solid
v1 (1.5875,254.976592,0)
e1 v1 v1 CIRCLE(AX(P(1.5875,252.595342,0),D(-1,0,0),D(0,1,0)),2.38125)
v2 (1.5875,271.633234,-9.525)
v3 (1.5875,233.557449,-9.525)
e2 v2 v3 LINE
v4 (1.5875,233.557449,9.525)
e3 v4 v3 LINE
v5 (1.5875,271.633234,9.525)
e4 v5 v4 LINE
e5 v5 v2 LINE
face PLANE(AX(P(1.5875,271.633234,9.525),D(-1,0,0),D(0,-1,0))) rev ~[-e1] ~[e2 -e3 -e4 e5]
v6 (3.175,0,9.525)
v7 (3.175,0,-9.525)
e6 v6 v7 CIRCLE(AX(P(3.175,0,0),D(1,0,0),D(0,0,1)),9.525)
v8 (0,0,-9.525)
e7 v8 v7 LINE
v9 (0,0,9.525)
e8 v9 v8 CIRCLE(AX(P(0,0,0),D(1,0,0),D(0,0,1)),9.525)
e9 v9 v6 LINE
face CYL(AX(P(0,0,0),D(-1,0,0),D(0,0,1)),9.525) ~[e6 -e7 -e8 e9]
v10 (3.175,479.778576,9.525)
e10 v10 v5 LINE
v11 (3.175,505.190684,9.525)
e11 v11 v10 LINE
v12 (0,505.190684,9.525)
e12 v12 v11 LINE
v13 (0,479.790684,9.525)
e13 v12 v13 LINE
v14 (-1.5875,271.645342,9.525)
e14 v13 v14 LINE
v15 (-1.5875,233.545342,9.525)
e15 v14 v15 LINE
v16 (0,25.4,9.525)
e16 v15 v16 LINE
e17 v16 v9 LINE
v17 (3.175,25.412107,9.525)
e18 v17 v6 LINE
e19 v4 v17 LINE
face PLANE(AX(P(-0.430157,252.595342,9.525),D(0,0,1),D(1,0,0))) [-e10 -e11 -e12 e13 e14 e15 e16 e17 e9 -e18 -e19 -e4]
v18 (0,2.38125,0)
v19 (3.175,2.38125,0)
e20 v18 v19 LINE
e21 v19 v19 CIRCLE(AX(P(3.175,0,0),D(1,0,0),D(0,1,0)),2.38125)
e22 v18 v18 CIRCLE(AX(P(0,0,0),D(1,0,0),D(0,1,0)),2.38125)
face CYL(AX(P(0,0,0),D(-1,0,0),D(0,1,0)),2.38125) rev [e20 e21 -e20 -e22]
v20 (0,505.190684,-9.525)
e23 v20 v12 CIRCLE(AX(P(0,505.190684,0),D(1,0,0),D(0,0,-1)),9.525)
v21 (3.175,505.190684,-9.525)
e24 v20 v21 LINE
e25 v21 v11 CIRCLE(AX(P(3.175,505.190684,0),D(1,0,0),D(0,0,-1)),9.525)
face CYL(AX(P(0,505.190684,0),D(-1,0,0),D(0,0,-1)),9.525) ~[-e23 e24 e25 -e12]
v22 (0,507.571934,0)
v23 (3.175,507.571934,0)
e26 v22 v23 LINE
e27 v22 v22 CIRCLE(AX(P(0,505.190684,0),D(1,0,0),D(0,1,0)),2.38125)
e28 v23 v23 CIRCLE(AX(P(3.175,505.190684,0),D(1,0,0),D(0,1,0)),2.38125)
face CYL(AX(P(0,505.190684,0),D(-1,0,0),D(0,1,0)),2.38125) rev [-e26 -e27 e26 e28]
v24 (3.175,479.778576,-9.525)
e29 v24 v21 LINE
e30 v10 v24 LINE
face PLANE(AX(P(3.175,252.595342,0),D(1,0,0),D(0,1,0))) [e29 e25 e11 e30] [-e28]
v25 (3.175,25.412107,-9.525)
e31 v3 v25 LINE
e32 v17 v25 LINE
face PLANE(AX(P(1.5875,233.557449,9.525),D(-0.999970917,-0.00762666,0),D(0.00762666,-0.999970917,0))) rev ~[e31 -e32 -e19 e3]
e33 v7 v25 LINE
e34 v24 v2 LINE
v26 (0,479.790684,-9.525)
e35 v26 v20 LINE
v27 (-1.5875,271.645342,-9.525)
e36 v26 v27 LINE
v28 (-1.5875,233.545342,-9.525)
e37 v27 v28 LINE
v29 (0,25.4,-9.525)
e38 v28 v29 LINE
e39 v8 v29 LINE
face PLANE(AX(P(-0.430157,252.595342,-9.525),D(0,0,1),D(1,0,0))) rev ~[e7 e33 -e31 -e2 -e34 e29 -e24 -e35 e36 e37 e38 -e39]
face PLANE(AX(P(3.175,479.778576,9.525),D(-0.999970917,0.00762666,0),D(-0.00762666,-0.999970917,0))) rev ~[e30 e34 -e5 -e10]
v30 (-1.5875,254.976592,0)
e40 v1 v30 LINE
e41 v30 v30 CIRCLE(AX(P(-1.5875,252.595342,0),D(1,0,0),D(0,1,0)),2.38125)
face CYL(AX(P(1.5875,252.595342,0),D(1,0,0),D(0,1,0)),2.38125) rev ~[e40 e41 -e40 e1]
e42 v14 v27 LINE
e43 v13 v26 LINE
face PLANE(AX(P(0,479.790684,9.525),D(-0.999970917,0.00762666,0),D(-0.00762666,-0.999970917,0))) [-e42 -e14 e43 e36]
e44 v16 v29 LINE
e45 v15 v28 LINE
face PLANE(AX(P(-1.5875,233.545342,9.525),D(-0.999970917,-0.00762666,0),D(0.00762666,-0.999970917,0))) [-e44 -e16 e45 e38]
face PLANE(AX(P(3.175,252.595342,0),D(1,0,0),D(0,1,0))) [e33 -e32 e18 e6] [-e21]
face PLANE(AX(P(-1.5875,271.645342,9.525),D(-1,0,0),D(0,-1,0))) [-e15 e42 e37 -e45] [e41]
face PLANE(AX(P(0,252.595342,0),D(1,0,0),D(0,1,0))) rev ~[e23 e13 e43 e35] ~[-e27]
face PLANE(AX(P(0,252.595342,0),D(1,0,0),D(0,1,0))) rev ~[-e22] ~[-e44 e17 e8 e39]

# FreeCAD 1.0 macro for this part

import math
import FreeCAD as App
import Part
import Sketcher

V = App.Vector
Q = App.Units.Quantity


def add_polygon(sketch, points):
    """Adds a closed chain of lines whose ends are joined by coincident constraints."""
    first, n = sketch.GeometryCount, len(points)
    for a, b in zip(points, points[1:] + points[:1]):
        sketch.addGeometry(Part.LineSegment(App.Vector(*a, 0), App.Vector(*b, 0)), False)
    for i in range(n):
        sketch.addConstraint(Sketcher.Constraint("Coincident", first + i, 2, first + (i + 1) % n, 1))

doc = App.newDocument("Part")
body = doc.addObject("PartDesign::Body", "Body")

# Sketch on YZ plane
sketch1 = doc.addObject("Sketcher::SketchObject", "Sketch")
body.addObject(sketch1)
sketch1.AttachmentSupport = (doc.YZ_Plane, [""])
sketch1.MapMode = "FlatFace"
sketch1.addGeometry(Part.LineSegment(V(505.190684, 9.525, 0), V(0, 9.525, 0)), False)
sketch1.addGeometry(Part.ArcOfCircle(Part.Circle(V(0, 0, 0), V(0, 0, 1), 9.525), math.radians(90), math.radians(270)), False)
sketch1.addGeometry(Part.LineSegment(V(0, -9.525, 0), V(505.190684, -9.525, 0)), False)
sketch1.addGeometry(Part.ArcOfCircle(Part.Circle(V(505.190684, 0, 0), V(0, 0, 1), 9.525), math.radians(-90), math.radians(90)), False)
sketch1.addGeometry(Part.Circle(V(0, 0, 0), V(0, 0, 1), 2.38125), False)
sketch1.addGeometry(Part.Circle(V(252.595342, 0, 0), V(0, 0, 1), 2.38125), False)
sketch1.addGeometry(Part.Circle(V(505.190684, 0, 0), V(0, 0, 1), 2.38125), False)
sketch1.addConstraint(Sketcher.Constraint("Tangent", 0, 2, 1, 1))
sketch1.addConstraint(Sketcher.Constraint("Tangent", 1, 2, 2, 1))
sketch1.addConstraint(Sketcher.Constraint("Tangent", 2, 2, 3, 1))
sketch1.addConstraint(Sketcher.Constraint("Tangent", 3, 2, 0, 1))
sketch1.addConstraint(Sketcher.Constraint("Horizontal", 0))
sketch1.addConstraint(Sketcher.Constraint("Horizontal", 2))
sketch1.addConstraint(Sketcher.Constraint("Coincident", 1, 3, -1, 1))
sketch1.addConstraint(Sketcher.Constraint("Coincident", 4, 3, -1, 1))
sketch1.addConstraint(Sketcher.Constraint("Coincident", 6, 3, 3, 3))
sketch1.addConstraint(Sketcher.Constraint("Equal", 4, 5))
sketch1.addConstraint(Sketcher.Constraint("Equal", 5, 6))
sketch1.addConstraint(Sketcher.Constraint("PointOnObject", 5, 3, -1))
sketch1.addConstraint(Sketcher.Constraint("Diameter", 4, Q("0.1875 in")))
sketch1.addConstraint(Sketcher.Constraint("Radius", 1, Q("0.375 in")))
sketch1.addConstraint(Sketcher.Constraint("DistanceX", 0, 2, 0, 1, Q("505.190684 mm")))
sketch1.addConstraint(Sketcher.Constraint("DistanceX", -1, 1, 5, 3, Q("252.595342 mm")))
pad1 = doc.addObject("PartDesign::Pad", "Pad")
body.addObject(pad1)
pad1.Profile = sketch1
pad1.Length = Q("0.125 in")

# Sketch on XY plane
sketch2 = doc.addObject("Sketcher::SketchObject", "Sketch001")
body.addObject(sketch2)
sketch2.AttachmentSupport = (doc.XY_Plane, [""])
sketch2.MapMode = "FlatFace"
sketch2.AttachmentOffset = App.Placement(V(0, 0, 0.375 * 25.4), App.Rotation())
add_polygon(sketch2, [(-1.5875, 233.545342), (0, 25.4), (0, 479.790684), (-1.5875, 271.645342)])  # lines 0-3
sketch2.addConstraint(Sketcher.Constraint("Vertical", 1))
sketch2.addConstraint(Sketcher.Constraint("Vertical", 3))
sketch2.addConstraint(Sketcher.Constraint("PointOnObject", 0, 2, -2))
sketch2.addConstraint(Sketcher.Constraint("Equal", 0, 2))
sketch2.addConstraint(Sketcher.Constraint("DistanceY", 3, 2, 3, 1, Q("1.5 in")))
sketch2.addConstraint(Sketcher.Constraint("DistanceY", -1, 1, 0, 2, Q("1 in")))
sketch2.addConstraint(Sketcher.Constraint("DistanceX", 2, 2, -1, 1, Q("0.0625 in")))
sketch2.addConstraint(Sketcher.Constraint("DistanceY", 1, 1, 1, 2, Q("454.390684 mm")))
pad2 = doc.addObject("PartDesign::Pad", "Pad001")
body.addObject(pad2)
pad2.Profile = sketch2
pad2.Length = Q("0.75 in")
pad2.Reversed = True

# Sketch on XY plane
sketch3 = doc.addObject("Sketcher::SketchObject", "Sketch002")
body.addObject(sketch3)
sketch3.AttachmentSupport = (doc.XY_Plane, [""])
sketch3.MapMode = "FlatFace"
sketch3.AttachmentOffset = App.Placement(V(0, 0, 0.375 * 25.4), App.Rotation())
add_polygon(sketch3, [(1.5875, 233.557449), (3.175, 25.412107), (3.175, 479.778576), (1.5875, 271.633234)])  # lines 0-3
sketch3.addConstraint(Sketcher.Constraint("Vertical", 1))
sketch3.addConstraint(Sketcher.Constraint("Vertical", 3))
sketch3.addConstraint(Sketcher.Constraint("Equal", 0, 2))
sketch3.addConstraint(Sketcher.Constraint("DistanceX", -1, 1, 0, 2, Q("0.125 in")))
sketch3.addConstraint(Sketcher.Constraint("DistanceX", -1, 1, 2, 2, Q("0.0625 in")))
sketch3.addConstraint(Sketcher.Constraint("DistanceY", 1, 1, 1, 2, Q("454.366469 mm")))
sketch3.addConstraint(Sketcher.Constraint("DistanceY", 3, 2, 3, 1, Q("38.075785 mm")))
sketch3.addConstraint(Sketcher.Constraint("DistanceY", -1, 1, 3, 2, Q("233.557449 mm")))
pocket1 = doc.addObject("PartDesign::Pocket", "Pocket")
body.addObject(pocket1)
pocket1.Profile = sketch3
pocket1.Length = Q("1 in")

# Sketch on YZ plane
sketch4 = doc.addObject("Sketcher::SketchObject", "Sketch003")
body.addObject(sketch4)
sketch4.AttachmentSupport = (doc.YZ_Plane, [""])
sketch4.MapMode = "FlatFace"
sketch4.AttachmentOffset = App.Placement(V(0, 0, 0.0625 * 25.4), App.Rotation())
sketch4.addGeometry(Part.Circle(V(252.595342, 0, 0), V(0, 0, 1), 2.38125), False)
sketch4.addConstraint(Sketcher.Constraint("PointOnObject", 0, 3, -1))
sketch4.addConstraint(Sketcher.Constraint("Diameter", 0, Q("0.1875 in")))
sketch4.addConstraint(Sketcher.Constraint("DistanceX", -1, 1, 0, 3, Q("252.595342 mm")))
pocket2 = doc.addObject("PartDesign::Pocket", "Pocket001")
body.addObject(pocket2)
pocket2.Profile = sketch4
pocket2.Length = Q("1 in")

doc.recompute()
